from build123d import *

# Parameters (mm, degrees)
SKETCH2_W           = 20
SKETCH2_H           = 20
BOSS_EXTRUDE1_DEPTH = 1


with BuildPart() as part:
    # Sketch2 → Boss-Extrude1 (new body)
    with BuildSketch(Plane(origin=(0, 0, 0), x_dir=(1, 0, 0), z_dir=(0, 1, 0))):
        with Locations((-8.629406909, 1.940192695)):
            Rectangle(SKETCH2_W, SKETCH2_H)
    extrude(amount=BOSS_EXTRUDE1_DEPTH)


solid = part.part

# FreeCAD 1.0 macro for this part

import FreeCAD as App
import Part
import Sketcher

V = App.Vector
Q = App.Units.Quantity


def add_polygon(sketch, points):
    """Adds a closed chain of lines whose ends are joined by coincident constraints."""
    first, n = sketch.GeometryCount, len(points)
    for a, b in zip(points, points[1:] + points[:1]):
        sketch.addGeometry(Part.LineSegment(App.Vector(*a, 0), App.Vector(*b, 0)), False)
    for i in range(n):
        sketch.addConstraint(Sketcher.Constraint("Coincident", first + i, 2, first + (i + 1) % n, 1))

doc = App.newDocument("Part")
body = doc.addObject("PartDesign::Body", "Body")

sketch1 = doc.addObject("Sketcher::SketchObject", "Sketch")
body.addObject(sketch1)
sketch1.AttachmentSupport = (doc.XZ_Plane, [""])
sketch1.MapMode = "FlatFace"
add_polygon(sketch1, [(-18.629407, -11.940193), (-18.629407, 8.059807), (1.370593, 8.059807), (1.370593, -11.940193)])
sketch1.addConstraint(Sketcher.Constraint("Vertical", 0))
sketch1.addConstraint(Sketcher.Constraint("Horizontal", 1))
sketch1.addConstraint(Sketcher.Constraint("Vertical", 2))
sketch1.addConstraint(Sketcher.Constraint("Horizontal", 3))
sketch1.addConstraint(Sketcher.Constraint("Equal", 3, 0))
sketch1.addConstraint(Sketcher.Constraint("DistanceX", 1, 1, 1, 2, Q("20 mm")))
sketch1.addConstraint(Sketcher.Constraint("DistanceX", 0, 2, -1, 1, Q("18.629407 mm")))
sketch1.addConstraint(Sketcher.Constraint("DistanceY", -1, 1, 0, 2, Q("8.059807 mm")))
pad1 = doc.addObject("PartDesign::Pad", "Pad")
body.addObject(pad1)
pad1.Profile = sketch1
pad1.Length = 1
pad1.Reversed = True

doc.recompute()
